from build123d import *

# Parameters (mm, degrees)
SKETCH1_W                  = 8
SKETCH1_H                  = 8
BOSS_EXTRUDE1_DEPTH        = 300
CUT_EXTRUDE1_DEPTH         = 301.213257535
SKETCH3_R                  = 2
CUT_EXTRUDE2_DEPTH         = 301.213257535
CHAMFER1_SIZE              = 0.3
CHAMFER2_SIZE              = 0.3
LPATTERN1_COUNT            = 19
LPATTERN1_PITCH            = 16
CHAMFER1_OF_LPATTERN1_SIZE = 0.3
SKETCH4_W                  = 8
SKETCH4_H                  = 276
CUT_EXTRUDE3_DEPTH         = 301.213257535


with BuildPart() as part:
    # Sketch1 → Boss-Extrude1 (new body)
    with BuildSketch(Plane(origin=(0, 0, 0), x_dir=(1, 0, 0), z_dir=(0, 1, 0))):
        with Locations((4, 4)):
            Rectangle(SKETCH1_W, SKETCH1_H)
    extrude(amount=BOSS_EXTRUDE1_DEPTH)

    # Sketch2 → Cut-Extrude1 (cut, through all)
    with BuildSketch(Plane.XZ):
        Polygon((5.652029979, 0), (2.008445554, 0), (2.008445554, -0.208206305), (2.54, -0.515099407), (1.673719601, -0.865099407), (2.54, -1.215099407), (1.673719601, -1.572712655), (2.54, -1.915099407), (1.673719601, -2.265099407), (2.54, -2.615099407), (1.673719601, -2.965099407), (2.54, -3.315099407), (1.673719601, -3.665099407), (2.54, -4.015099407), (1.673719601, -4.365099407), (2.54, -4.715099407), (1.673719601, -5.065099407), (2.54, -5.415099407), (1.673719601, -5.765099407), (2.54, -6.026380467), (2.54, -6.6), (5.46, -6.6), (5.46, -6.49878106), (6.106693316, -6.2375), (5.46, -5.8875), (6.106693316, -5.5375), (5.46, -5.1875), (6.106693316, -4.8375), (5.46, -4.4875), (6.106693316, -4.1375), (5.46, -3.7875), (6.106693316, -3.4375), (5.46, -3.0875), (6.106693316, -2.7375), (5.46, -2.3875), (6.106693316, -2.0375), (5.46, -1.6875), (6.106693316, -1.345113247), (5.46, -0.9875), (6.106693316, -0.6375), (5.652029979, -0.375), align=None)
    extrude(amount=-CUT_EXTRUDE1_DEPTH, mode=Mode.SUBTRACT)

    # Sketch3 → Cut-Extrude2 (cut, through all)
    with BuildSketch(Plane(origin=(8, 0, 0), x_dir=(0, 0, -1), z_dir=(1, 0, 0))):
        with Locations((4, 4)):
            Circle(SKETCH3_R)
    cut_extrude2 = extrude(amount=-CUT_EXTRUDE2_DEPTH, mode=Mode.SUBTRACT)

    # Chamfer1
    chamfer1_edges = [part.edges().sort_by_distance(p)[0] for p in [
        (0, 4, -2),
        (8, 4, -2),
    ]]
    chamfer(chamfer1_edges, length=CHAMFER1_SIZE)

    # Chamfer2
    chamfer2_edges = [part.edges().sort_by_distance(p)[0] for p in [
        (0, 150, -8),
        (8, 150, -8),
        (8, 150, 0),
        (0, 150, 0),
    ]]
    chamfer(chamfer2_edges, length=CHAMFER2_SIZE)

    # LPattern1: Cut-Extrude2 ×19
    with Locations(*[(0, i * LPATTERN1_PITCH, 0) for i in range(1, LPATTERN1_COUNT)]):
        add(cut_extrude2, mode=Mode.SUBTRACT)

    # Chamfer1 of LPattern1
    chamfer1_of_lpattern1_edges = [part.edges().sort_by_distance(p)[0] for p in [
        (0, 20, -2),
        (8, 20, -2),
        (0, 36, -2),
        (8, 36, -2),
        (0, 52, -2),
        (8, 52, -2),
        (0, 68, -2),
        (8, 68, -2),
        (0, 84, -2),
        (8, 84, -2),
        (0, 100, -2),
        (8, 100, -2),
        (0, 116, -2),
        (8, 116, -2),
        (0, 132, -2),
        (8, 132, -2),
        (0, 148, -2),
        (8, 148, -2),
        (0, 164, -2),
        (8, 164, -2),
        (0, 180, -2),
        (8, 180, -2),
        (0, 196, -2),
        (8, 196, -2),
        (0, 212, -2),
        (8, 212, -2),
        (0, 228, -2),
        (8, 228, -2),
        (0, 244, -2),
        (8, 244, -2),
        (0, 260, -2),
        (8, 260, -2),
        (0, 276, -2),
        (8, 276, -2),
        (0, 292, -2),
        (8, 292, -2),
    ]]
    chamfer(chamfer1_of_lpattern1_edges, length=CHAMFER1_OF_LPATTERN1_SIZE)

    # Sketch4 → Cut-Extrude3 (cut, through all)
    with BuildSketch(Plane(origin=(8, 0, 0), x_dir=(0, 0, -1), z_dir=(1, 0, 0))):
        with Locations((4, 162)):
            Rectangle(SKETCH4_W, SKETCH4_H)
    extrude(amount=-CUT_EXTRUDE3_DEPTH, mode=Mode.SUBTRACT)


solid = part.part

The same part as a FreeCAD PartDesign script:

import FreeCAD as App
import Part
import Sketcher

V = App.Vector
Q = App.Units.Quantity


def edges_at(feature, points):
    """Names of the edges that pass closest to the given points."""
    edges = feature.Shape.Edges
    near = lambda p: min(range(len(edges)), key=lambda i: edges[i].distToShape(Part.Vertex(*p))[0])
    return sorted({f"Edge{near(p) + 1}" for p in points})


def add_polygon(sketch, points):
    """Adds a closed chain of lines whose ends are joined by coincident constraints."""
    first, n = sketch.GeometryCount, len(points)
    for a, b in zip(points, points[1:] + points[:1]):
        sketch.addGeometry(Part.LineSegment(App.Vector(*a, 0), App.Vector(*b, 0)), False)
    for i in range(n):
        sketch.addConstraint(Sketcher.Constraint("Coincident", first + i, 2, first + (i + 1) % n, 1))

doc = App.newDocument("Part")
body = doc.addObject("PartDesign::Body", "Body")

sketch1 = body.newObject("Sketcher::SketchObject", "Sketch")
sketch1.AttachmentSupport = (doc.getObject("XZ_Plane"), [""])
sketch1.MapMode = "FlatFace"
add_polygon(sketch1, [(0, -8), (0, 0), (8, 0), (8, -8)])
sketch1.addConstraint(Sketcher.Constraint("Vertical", 0))
sketch1.addConstraint(Sketcher.Constraint("Horizontal", 1))
sketch1.addConstraint(Sketcher.Constraint("Vertical", 2))
sketch1.addConstraint(Sketcher.Constraint("Horizontal", 3))
sketch1.addConstraint(Sketcher.Constraint("Coincident", 0, 2, -1, 1))
sketch1.addConstraint(Sketcher.Constraint("Equal", 3, 0))
sketch1.addConstraint(Sketcher.Constraint("DistanceX", 1, 1, 1, 2, 8.0))
pad1 = body.newObject("PartDesign::Pad", "Pad")
pad1.Profile = sketch1
pad1.Length = 300
pad1.Reversed = True

sketch2 = body.newObject("Sketcher::SketchObject", "Sketch001")
sketch2.AttachmentSupport = (doc.getObject("XZ_Plane"), [""])
sketch2.MapMode = "FlatFace"
add_polygon(sketch2, [(5.65203, 0), (2.008446, 0), (2.008446, -0.208206), (2.54, -0.515099), (1.67372, -0.865099), (2.54, -1.215099), (1.67372, -1.572713), (2.54, -1.915099), (1.67372, -2.265099), (2.54, -2.615099), (1.67372, -2.965099), (2.54, -3.315099), (1.67372, -3.665099), (2.54, -4.015099), (1.67372, -4.365099), (2.54, -4.715099), (1.67372, -5.065099), (2.54, -5.415099), (1.67372, -5.765099), (2.54, -6.02638), (2.54, -6.6), (5.46, -6.6), (5.46, -6.498781), (6.106693, -6.2375), (5.46, -5.8875), (6.106693, -5.5375), (5.46, -5.1875), (6.106693, -4.8375), (5.46, -4.4875), (6.106693, -4.1375), (5.46, -3.7875), (6.106693, -3.4375), (5.46, -3.0875), (6.106693, -2.7375), (5.46, -2.3875), (6.106693, -2.0375), (5.46, -1.6875), (6.106693, -1.345113), (5.46, -0.9875), (6.106693, -0.6375), (5.65203, -0.375)])
sketch2.addConstraint(Sketcher.Constraint("Horizontal", 0))
sketch2.addConstraint(Sketcher.Constraint("Vertical", 1))
sketch2.addConstraint(Sketcher.Constraint("Vertical", 19))
sketch2.addConstraint(Sketcher.Constraint("Horizontal", 20))
sketch2.addConstraint(Sketcher.Constraint("Vertical", 21))
sketch2.addConstraint(Sketcher.Constraint("Vertical", 40))
sketch2.addConstraint(Sketcher.Constraint("PointOnObject", 0, 2, -1))
sketch2.addConstraint(Sketcher.Constraint("Parallel", 3, 7))
sketch2.addConstraint(Sketcher.Constraint("Parallel", 4, 8))
sketch2.addConstraint(Sketcher.Constraint("Parallel", 7, 9))
sketch2.addConstraint(Sketcher.Constraint("Parallel", 8, 10))
sketch2.addConstraint(Sketcher.Constraint("Parallel", 9, 11))
sketch2.addConstraint(Sketcher.Constraint("Parallel", 10, 12))
sketch2.addConstraint(Sketcher.Constraint("Parallel", 11, 13))
sketch2.addConstraint(Sketcher.Constraint("Parallel", 12, 14))
sketch2.addConstraint(Sketcher.Constraint("Parallel", 13, 15))
sketch2.addConstraint(Sketcher.Constraint("Parallel", 14, 16))
sketch2.addConstraint(Sketcher.Constraint("Parallel", 15, 17))
sketch2.addConstraint(Sketcher.Constraint("Parallel", 17, 22))
sketch2.addConstraint(Sketcher.Constraint("Parallel", 23, 25))
sketch2.addConstraint(Sketcher.Constraint("Parallel", 24, 26))
sketch2.addConstraint(Sketcher.Constraint("Parallel", 25, 27))
sketch2.addConstraint(Sketcher.Constraint("Parallel", 26, 28))
sketch2.addConstraint(Sketcher.Constraint("Parallel", 27, 29))
sketch2.addConstraint(Sketcher.Constraint("Parallel", 28, 30))
sketch2.addConstraint(Sketcher.Constraint("Parallel", 29, 31))
sketch2.addConstraint(Sketcher.Constraint("Parallel", 30, 32))
sketch2.addConstraint(Sketcher.Constraint("Parallel", 31, 33))
sketch2.addConstraint(Sketcher.Constraint("Parallel", 32, 34))
sketch2.addConstraint(Sketcher.Constraint("Parallel", 33, 35))
sketch2.addConstraint(Sketcher.Constraint("Parallel", 34, 38))
sketch2.addConstraint(Sketcher.Constraint("Parallel", 2, 39))
sketch2.addConstraint(Sketcher.Constraint("Vertical", 2, 2, 4, 2))
sketch2.addConstraint(Sketcher.Constraint("Vertical", 3, 2, 5, 2))
sketch2.addConstraint(Sketcher.Constraint("Vertical", 4, 2, 6, 2))
sketch2.addConstraint(Sketcher.Constraint("Vertical", 5, 2, 7, 2))
sketch2.addConstraint(Sketcher.Constraint("Vertical", 6, 2, 8, 2))
sketch2.addConstraint(Sketcher.Constraint("Vertical", 7, 2, 9, 2))
sketch2.addConstraint(Sketcher.Constraint("Vertical", 8, 2, 10, 2))
sketch2.addConstraint(Sketcher.Constraint("Vertical", 9, 2, 11, 2))
sketch2.addConstraint(Sketcher.Constraint("Vertical", 10, 2, 12, 2))
sketch2.addConstraint(Sketcher.Constraint("Vertical", 11, 2, 13, 2))
sketch2.addConstraint(Sketcher.Constraint("Vertical", 12, 2, 14, 2))
sketch2.addConstraint(Sketcher.Constraint("Vertical", 13, 2, 15, 2))
sketch2.addConstraint(Sketcher.Constraint("Vertical", 14, 2, 16, 2))
sketch2.addConstraint(Sketcher.Constraint("Vertical", 15, 2, 17, 2))
sketch2.addConstraint(Sketcher.Constraint("Vertical", 16, 2, 18, 2))
sketch2.addConstraint(Sketcher.Constraint("Vertical", 21, 2, 23, 2))
sketch2.addConstraint(Sketcher.Constraint("Vertical", 22, 2, 24, 2))
sketch2.addConstraint(Sketcher.Constraint("Vertical", 23, 2, 25, 2))
sketch2.addConstraint(Sketcher.Constraint("Vertical", 24, 2, 26, 2))
sketch2.addConstraint(Sketcher.Constraint("Vertical", 25, 2, 27, 2))
sketch2.addConstraint(Sketcher.Constraint("Vertical", 26, 2, 28, 2))
sketch2.addConstraint(Sketcher.Constraint("Vertical", 27, 2, 29, 2))
sketch2.addConstraint(Sketcher.Constraint("Vertical", 28, 2, 30, 2))
sketch2.addConstraint(Sketcher.Constraint("Vertical", 29, 2, 31, 2))
sketch2.addConstraint(Sketcher.Constraint("Vertical", 30, 2, 32, 2))
sketch2.addConstraint(Sketcher.Constraint("Vertical", 31, 2, 33, 2))
sketch2.addConstraint(Sketcher.Constraint("Vertical", 32, 2, 34, 2))
sketch2.addConstraint(Sketcher.Constraint("Vertical", 33, 2, 35, 2))
sketch2.addConstraint(Sketcher.Constraint("Vertical", 34, 2, 36, 2))
sketch2.addConstraint(Sketcher.Constraint("Vertical", 35, 2, 37, 2))
sketch2.addConstraint(Sketcher.Constraint("Vertical", 36, 2, 38, 2))
sketch2.addConstraint(Sketcher.Constraint("Equal", 3, 4))
sketch2.addConstraint(Sketcher.Constraint("Equal", 23, 24))
sketch2.addConstraint(Sketcher.Constraint("Angle", 2, Q("-30 deg")))
sketch2.addConstraint(Sketcher.Constraint("Angle", 3, Q("-158 deg")))
sketch2.addConstraint(Sketcher.Constraint("DistanceX", 20, 1, 20, 2, 2.92))
sketch2.addConstraint(Sketcher.Constraint("DistanceY", 19, 2, -1, 1, 6.6))
sketch2.addConstraint(Sketcher.Constraint("DistanceY", 4, 2, 2, 2, 0.7))
sketch2.addConstraint(Sketcher.Constraint("DistanceY", 6, 2, 4, 2, 0.7))
sketch2.addConstraint(Sketcher.Constraint("DistanceY", 22, 2, 24, 2, 0.7))
sketch2.addConstraint(Sketcher.Constraint("DistanceY", 35, 2, 37, 2, 0.7))
sketch2.addConstraint(Sketcher.Constraint("DistanceY", 40, 1, 40, 2, 0.375))
sketch2.addConstraint(Sketcher.Constraint("DistanceX", -1, 1, 2, 2, 2.54))
sketch2.addConstraint(Sketcher.Constraint("Distance", 39, 0.525))
sketch2.addConstraint(Sketcher.Constraint("DistanceY", 19, 2, 19, 1, 0.57362))
sketch2.addConstraint(Sketcher.Constraint("DistanceY", 21, 1, 21, 2, 0.101219))
sketch2.addConstraint(Sketcher.Constraint("DistanceY", 2, 2, -1, 1, 0.515099))
sketch2.addConstraint(Sketcher.Constraint("Distance", 6, 0.931488))
sketch2.addConstraint(Sketcher.Constraint("Distance", 36, 0.731738))
sketch2.addConstraint(Sketcher.Constraint("DistanceX", 0, 2, 0, 1, 3.643584))
pocket1 = body.newObject("PartDesign::Pocket", "Pocket")
pocket1.Profile = sketch2
pocket1.Type = "ThroughAll"

sketch3 = body.newObject("Sketcher::SketchObject", "Sketch002")
sketch3.AttachmentSupport = (doc.getObject("YZ_Plane"), [""])
sketch3.MapMode = "FlatFace"
sketch3.AttachmentOffset = App.Placement(V(0, 0, 8), App.Rotation())
sketch3.addGeometry(Part.Circle(V(4, -4, 0), V(0, 0, 1), 2), False)
sketch3.addConstraint(Sketcher.Constraint("Diameter", 0, 4.0))
sketch3.addConstraint(Sketcher.Constraint("DistanceX", -1, 1, 0, 3, 4.0))
sketch3.addConstraint(Sketcher.Constraint("DistanceY", 0, 3, -1, 1, 4.0))
pocket2 = body.newObject("PartDesign::Pocket", "Pocket001")
pocket2.Profile = sketch3
pocket2.Type = "ThroughAll"
doc.recompute()

chamfer = body.newObject("PartDesign::Chamfer", "Chamfer")
chamfer.Base = (pocket2, edges_at(pocket2, [(0, 4, -2), (8, 4, -2)]))
chamfer.Size = 0.3
doc.recompute()

chamfer2 = body.newObject("PartDesign::Chamfer", "Chamfer001")
chamfer2.Base = (chamfer, edges_at(chamfer, [
    (0, 150, -8),
    (8, 150, -8),
    (8, 150, 0),
    (0, 150, 0),
]))
chamfer2.Size = 0.3
doc.recompute()

linearpattern = body.newObject("PartDesign::LinearPattern", "LinearPattern")
linearpattern.Originals = [pocket2]
linearpattern.Direction = (doc.getObject("Y_Axis"), [""])
linearpattern.Mode = "offset"
linearpattern.Offset = 16
linearpattern.Occurrences = 19
body.Tip = linearpattern
doc.recompute()

chamfer3 = body.newObject("PartDesign::Chamfer", "Chamfer002")
chamfer3.Base = (linearpattern, edges_at(linearpattern, [
    (0, 20, -2),
    (8, 20, -2),
    (0, 36, -2),
    (8, 36, -2),
    (0, 52, -2),
    (8, 52, -2),
    (0, 68, -2),
    (8, 68, -2),
    (0, 84, -2),
    (8, 84, -2),
    (0, 100, -2),
    (8, 100, -2),
    (0, 116, -2),
    (8, 116, -2),
    (0, 132, -2),
    (8, 132, -2),
    (0, 148, -2),
    (8, 148, -2),
    (0, 164, -2),
    (8, 164, -2),
    (0, 180, -2),
    (8, 180, -2),
    (0, 196, -2),
    (8, 196, -2),
    (0, 212, -2),
    (8, 212, -2),
    (0, 228, -2),
    (8, 228, -2),
    (0, 244, -2),
    (8, 244, -2),
    (0, 260, -2),
    (8, 260, -2),
    (0, 276, -2),
    (8, 276, -2),
    (0, 292, -2),
    (8, 292, -2),
]))
chamfer3.Size = 0.3

sketch4 = body.newObject("Sketcher::SketchObject", "Sketch003")
sketch4.AttachmentSupport = (doc.getObject("YZ_Plane"), [""])
sketch4.MapMode = "FlatFace"
sketch4.AttachmentOffset = App.Placement(V(0, 0, 8), App.Rotation())
add_polygon(sketch4, [(300, 0), (24, 0), (24, -8), (300, -8)])
sketch4.addConstraint(Sketcher.Constraint("Horizontal", 0))
sketch4.addConstraint(Sketcher.Constraint("Vertical", 1))
sketch4.addConstraint(Sketcher.Constraint("Horizontal", 2))
sketch4.addConstraint(Sketcher.Constraint("Vertical", 3))
sketch4.addConstraint(Sketcher.Constraint("PointOnObject", 0, 2, -1))
sketch4.addConstraint(Sketcher.Constraint("DistanceX", 0, 2, 0, 1, 276.0))
sketch4.addConstraint(Sketcher.Constraint("DistanceY", 1, 2, 1, 1, 8.0))
sketch4.addConstraint(Sketcher.Constraint("DistanceX", -1, 1, 0, 2, 24.0))
pocket3 = body.newObject("PartDesign::Pocket", "Pocket002")
pocket3.Profile = sketch4
pocket3.Type = "ThroughAll"

doc.recompute()
